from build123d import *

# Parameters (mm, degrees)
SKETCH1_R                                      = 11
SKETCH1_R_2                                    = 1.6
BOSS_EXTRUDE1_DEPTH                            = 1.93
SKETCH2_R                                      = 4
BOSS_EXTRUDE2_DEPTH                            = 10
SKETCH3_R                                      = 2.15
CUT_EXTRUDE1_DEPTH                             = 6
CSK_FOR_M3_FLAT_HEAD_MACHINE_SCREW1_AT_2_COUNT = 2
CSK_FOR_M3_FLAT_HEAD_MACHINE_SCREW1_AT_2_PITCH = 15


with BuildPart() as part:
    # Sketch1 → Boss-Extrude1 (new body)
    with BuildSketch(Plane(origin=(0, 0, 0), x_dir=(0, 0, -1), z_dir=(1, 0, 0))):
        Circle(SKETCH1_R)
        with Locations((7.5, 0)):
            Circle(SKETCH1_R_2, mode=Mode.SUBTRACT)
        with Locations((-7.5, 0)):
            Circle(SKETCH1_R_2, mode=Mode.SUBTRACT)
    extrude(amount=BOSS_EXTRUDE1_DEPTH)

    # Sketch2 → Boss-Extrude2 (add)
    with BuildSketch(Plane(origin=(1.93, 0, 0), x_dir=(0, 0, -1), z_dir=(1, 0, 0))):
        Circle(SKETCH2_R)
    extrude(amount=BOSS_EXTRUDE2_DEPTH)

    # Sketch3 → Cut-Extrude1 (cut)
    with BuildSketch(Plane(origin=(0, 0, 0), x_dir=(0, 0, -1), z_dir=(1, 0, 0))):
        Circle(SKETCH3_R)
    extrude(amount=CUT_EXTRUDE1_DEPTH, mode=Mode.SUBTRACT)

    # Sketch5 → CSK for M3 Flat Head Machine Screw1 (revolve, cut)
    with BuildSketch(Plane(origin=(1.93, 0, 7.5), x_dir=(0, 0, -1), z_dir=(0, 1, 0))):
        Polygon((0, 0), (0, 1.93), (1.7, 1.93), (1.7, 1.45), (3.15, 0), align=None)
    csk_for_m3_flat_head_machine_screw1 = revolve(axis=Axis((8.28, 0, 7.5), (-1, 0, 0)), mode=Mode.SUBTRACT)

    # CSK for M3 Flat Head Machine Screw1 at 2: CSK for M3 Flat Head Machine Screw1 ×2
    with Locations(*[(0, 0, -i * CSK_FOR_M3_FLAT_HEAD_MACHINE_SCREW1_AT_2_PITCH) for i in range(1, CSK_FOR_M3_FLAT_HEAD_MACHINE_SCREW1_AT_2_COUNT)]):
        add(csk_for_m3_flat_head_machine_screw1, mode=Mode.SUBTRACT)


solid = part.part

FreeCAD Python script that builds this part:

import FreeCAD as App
import Part
import Sketcher
Q = App.Units.Quantity

doc = App.newDocument("Part")
params = doc.addObject("Spreadsheet::Sheet", "Params")
for row, (alias, value) in enumerate([
    ("sketch1_diameter", "22 mm"),
    ("sketch1_diameter2", "3.2 mm"),
    ("pad1_length", "1.93 mm"),
    ("sketch2_diameter", "8 mm"),
    ("pad2_length", "10 mm"),
    ("sketch3_diameter", "4.3 mm"),
    ("pocket1_length", "6 mm"),
    ("sketch4_height", "1.7 mm"),
    ("sketch4_width", "1.93 mm"),
    ("sketch4_width2", "0.48 mm"),
    ("groove_angle", "360 deg"),
    ("linearpattern_pitch", "15 mm"),
], start=1):
    params.set(f"A{row}", alias)
    params.set(f"B{row}", "=" + value)
    params.setAlias(f"B{row}", alias)

body = doc.addObject("PartDesign::Body", "Body")

# Sketch on YZ plane
sketch1 = doc.addObject("Sketcher::SketchObject", "Sketch")
body.addObject(sketch1)
sketch1.AttachmentSupport = (doc.YZ_Plane, [""])
sketch1.MapMode = "FlatFace"
sketch1.addGeometry([
    Part.Circle(App.Vector(0, 0, 0), App.Vector(0, 0, 1), 11),
    Part.Circle(App.Vector(0, 7.5, 0), App.Vector(0, 0, 1), 1.6),
    Part.Circle(App.Vector(0, -7.5, 0), App.Vector(0, 0, 1), 1.6),
], False)
sketch1.addConstraint([
    Sketcher.Constraint("Coincident", 0, 3, -1, 1),
    Sketcher.Constraint("Equal", 1, 2),
    Sketcher.Constraint("Symmetric", 1, 3, 2, 3, -1, 1),
    Sketcher.Constraint("PointOnObject", 1, 3, -2),
    Sketcher.Constraint("Diameter", 0, Q("22 mm")),
    Sketcher.Constraint("Diameter", 1, Q("3.2 mm")),
    Sketcher.Constraint("DistanceY", 2, 3, 1, 3, Q("15 mm")),
])
sketch1.setExpression("Constraints[4]", "Params.sketch1_diameter")
sketch1.setExpression("Constraints[5]", "Params.sketch1_diameter2")
pad1 = doc.addObject("PartDesign::Pad", "Pad")
body.addObject(pad1)
pad1.Profile = sketch1
pad1.setExpression("Length", "Params.pad1_length")

# Sketch on YZ plane
sketch2 = doc.addObject("Sketcher::SketchObject", "Sketch001")
body.addObject(sketch2)
sketch2.AttachmentSupport = (doc.YZ_Plane, [""])
sketch2.MapMode = "FlatFace"
sketch2.AttachmentOffset = App.Placement(App.Vector(0, 0, 1.93), App.Rotation())
sketch2.addGeometry(Part.Circle(App.Vector(0, 0, 0), App.Vector(0, 0, 1), 4), False)
sketch2.addConstraint([
    Sketcher.Constraint("Coincident", 0, 3, -1, 1),
    Sketcher.Constraint("Diameter", 0, Q("8 mm")),
])
sketch2.setExpression("Constraints[1]", "Params.sketch2_diameter")
pad2 = doc.addObject("PartDesign::Pad", "Pad001")
body.addObject(pad2)
pad2.Profile = sketch2
pad2.setExpression("Length", "Params.pad2_length")

# Sketch on YZ plane
sketch3 = doc.addObject("Sketcher::SketchObject", "Sketch002")
body.addObject(sketch3)
sketch3.AttachmentSupport = (doc.YZ_Plane, [""])
sketch3.MapMode = "FlatFace"
sketch3.addGeometry(Part.Circle(App.Vector(0, 0, 0), App.Vector(0, 0, 1), 2.1), False)
sketch3.addConstraint([
    Sketcher.Constraint("Coincident", 0, 3, -1, 1),
    Sketcher.Constraint("Diameter", 0, Q("4.3 mm")),
])
sketch3.setExpression("Constraints[1]", "Params.sketch3_diameter")
pocket1 = doc.addObject("PartDesign::Pocket", "Pocket")
body.addObject(pocket1)
pocket1.Profile = sketch3
pocket1.setExpression("Length", "Params.pocket1_length")
pocket1.Reversed = True

# Sketch on XZ plane
sketch4 = doc.addObject("Sketcher::SketchObject", "Sketch003")
body.addObject(sketch4)
sketch4.AttachmentSupport = (doc.XZ_Plane, [""])
sketch4.MapMode = "FlatFace"
sketch4.addGeometry([
    Part.LineSegment(App.Vector(0, 7.5, 0), App.Vector(1.93, 7.5, 0)),  # 0
    Part.LineSegment(App.Vector(1.93, 7.5, 0), App.Vector(1.93, 4.35, 0)),  # 1
    Part.LineSegment(App.Vector(1.93, 4.35, 0), App.Vector(0.48, 5.8, 0)),  # 2
    Part.LineSegment(App.Vector(0.48, 5.8, 0), App.Vector(0, 5.8, 0)),  # 3
    Part.LineSegment(App.Vector(0, 5.8, 0), App.Vector(0, 7.5, 0)),  # 4
], False)
sketch4.addGeometry(Part.LineSegment(App.Vector(1.93, 7.5, 0), App.Vector(0, 7.5, 0)), True)  # axis
sketch4.addConstraint([
    Sketcher.Constraint("Coincident", 0, 2, 1, 1),
    Sketcher.Constraint("Coincident", 1, 2, 2, 1),
    Sketcher.Constraint("Coincident", 2, 2, 3, 1),
    Sketcher.Constraint("Coincident", 3, 2, 4, 1),
    Sketcher.Constraint("Coincident", 4, 2, 0, 1),
    Sketcher.Constraint("Horizontal", 0),
    Sketcher.Constraint("Vertical", 1),
    Sketcher.Constraint("Horizontal", 3),
    Sketcher.Constraint("Vertical", 4),
    Sketcher.Constraint("Horizontal", 5),
    Sketcher.Constraint("Coincident", 5, 1, 0, 2),
    Sketcher.Constraint("PointOnObject", 3, 2, -2),
    Sketcher.Constraint("PointOnObject", 5, 2, -2),
    Sketcher.Constraint("Angle", 2, Q("135 deg")),
    Sketcher.Constraint("DistanceY", 4, 1, 4, 2, Q("1.7 mm")),
    Sketcher.Constraint("DistanceX", 0, 1, 0, 2, Q("1.93 mm")),
    Sketcher.Constraint("DistanceX", 3, 2, 3, 1, Q("0.48 mm")),
    Sketcher.Constraint("DistanceY", -1, 1, 0, 2, Q("7.5 mm")),
])
sketch4.setExpression("Constraints[14]", "Params.sketch4_height")
sketch4.setExpression("Constraints[15]", "Params.sketch4_width")
sketch4.setExpression("Constraints[16]", "Params.sketch4_width2")
groove = doc.addObject("PartDesign::Groove", "Groove")
body.addObject(groove)
groove.Profile = sketch4
groove.ReferenceAxis = (sketch4, ["Axis0"])
groove.setExpression("Angle", "Params.groove_angle")
doc.recompute()

linearpattern = doc.addObject("PartDesign::LinearPattern", "LinearPattern")
body.addObject(linearpattern)
linearpattern.Originals = [groove]
linearpattern.Direction = (doc.Z_Axis, [""])
linearpattern.Mode = "offset"
linearpattern.setExpression("Offset", "Params.linearpattern_pitch")
linearpattern.Occurrences = 2
linearpattern.Reversed = True
body.Tip = linearpattern

doc.recompute()
